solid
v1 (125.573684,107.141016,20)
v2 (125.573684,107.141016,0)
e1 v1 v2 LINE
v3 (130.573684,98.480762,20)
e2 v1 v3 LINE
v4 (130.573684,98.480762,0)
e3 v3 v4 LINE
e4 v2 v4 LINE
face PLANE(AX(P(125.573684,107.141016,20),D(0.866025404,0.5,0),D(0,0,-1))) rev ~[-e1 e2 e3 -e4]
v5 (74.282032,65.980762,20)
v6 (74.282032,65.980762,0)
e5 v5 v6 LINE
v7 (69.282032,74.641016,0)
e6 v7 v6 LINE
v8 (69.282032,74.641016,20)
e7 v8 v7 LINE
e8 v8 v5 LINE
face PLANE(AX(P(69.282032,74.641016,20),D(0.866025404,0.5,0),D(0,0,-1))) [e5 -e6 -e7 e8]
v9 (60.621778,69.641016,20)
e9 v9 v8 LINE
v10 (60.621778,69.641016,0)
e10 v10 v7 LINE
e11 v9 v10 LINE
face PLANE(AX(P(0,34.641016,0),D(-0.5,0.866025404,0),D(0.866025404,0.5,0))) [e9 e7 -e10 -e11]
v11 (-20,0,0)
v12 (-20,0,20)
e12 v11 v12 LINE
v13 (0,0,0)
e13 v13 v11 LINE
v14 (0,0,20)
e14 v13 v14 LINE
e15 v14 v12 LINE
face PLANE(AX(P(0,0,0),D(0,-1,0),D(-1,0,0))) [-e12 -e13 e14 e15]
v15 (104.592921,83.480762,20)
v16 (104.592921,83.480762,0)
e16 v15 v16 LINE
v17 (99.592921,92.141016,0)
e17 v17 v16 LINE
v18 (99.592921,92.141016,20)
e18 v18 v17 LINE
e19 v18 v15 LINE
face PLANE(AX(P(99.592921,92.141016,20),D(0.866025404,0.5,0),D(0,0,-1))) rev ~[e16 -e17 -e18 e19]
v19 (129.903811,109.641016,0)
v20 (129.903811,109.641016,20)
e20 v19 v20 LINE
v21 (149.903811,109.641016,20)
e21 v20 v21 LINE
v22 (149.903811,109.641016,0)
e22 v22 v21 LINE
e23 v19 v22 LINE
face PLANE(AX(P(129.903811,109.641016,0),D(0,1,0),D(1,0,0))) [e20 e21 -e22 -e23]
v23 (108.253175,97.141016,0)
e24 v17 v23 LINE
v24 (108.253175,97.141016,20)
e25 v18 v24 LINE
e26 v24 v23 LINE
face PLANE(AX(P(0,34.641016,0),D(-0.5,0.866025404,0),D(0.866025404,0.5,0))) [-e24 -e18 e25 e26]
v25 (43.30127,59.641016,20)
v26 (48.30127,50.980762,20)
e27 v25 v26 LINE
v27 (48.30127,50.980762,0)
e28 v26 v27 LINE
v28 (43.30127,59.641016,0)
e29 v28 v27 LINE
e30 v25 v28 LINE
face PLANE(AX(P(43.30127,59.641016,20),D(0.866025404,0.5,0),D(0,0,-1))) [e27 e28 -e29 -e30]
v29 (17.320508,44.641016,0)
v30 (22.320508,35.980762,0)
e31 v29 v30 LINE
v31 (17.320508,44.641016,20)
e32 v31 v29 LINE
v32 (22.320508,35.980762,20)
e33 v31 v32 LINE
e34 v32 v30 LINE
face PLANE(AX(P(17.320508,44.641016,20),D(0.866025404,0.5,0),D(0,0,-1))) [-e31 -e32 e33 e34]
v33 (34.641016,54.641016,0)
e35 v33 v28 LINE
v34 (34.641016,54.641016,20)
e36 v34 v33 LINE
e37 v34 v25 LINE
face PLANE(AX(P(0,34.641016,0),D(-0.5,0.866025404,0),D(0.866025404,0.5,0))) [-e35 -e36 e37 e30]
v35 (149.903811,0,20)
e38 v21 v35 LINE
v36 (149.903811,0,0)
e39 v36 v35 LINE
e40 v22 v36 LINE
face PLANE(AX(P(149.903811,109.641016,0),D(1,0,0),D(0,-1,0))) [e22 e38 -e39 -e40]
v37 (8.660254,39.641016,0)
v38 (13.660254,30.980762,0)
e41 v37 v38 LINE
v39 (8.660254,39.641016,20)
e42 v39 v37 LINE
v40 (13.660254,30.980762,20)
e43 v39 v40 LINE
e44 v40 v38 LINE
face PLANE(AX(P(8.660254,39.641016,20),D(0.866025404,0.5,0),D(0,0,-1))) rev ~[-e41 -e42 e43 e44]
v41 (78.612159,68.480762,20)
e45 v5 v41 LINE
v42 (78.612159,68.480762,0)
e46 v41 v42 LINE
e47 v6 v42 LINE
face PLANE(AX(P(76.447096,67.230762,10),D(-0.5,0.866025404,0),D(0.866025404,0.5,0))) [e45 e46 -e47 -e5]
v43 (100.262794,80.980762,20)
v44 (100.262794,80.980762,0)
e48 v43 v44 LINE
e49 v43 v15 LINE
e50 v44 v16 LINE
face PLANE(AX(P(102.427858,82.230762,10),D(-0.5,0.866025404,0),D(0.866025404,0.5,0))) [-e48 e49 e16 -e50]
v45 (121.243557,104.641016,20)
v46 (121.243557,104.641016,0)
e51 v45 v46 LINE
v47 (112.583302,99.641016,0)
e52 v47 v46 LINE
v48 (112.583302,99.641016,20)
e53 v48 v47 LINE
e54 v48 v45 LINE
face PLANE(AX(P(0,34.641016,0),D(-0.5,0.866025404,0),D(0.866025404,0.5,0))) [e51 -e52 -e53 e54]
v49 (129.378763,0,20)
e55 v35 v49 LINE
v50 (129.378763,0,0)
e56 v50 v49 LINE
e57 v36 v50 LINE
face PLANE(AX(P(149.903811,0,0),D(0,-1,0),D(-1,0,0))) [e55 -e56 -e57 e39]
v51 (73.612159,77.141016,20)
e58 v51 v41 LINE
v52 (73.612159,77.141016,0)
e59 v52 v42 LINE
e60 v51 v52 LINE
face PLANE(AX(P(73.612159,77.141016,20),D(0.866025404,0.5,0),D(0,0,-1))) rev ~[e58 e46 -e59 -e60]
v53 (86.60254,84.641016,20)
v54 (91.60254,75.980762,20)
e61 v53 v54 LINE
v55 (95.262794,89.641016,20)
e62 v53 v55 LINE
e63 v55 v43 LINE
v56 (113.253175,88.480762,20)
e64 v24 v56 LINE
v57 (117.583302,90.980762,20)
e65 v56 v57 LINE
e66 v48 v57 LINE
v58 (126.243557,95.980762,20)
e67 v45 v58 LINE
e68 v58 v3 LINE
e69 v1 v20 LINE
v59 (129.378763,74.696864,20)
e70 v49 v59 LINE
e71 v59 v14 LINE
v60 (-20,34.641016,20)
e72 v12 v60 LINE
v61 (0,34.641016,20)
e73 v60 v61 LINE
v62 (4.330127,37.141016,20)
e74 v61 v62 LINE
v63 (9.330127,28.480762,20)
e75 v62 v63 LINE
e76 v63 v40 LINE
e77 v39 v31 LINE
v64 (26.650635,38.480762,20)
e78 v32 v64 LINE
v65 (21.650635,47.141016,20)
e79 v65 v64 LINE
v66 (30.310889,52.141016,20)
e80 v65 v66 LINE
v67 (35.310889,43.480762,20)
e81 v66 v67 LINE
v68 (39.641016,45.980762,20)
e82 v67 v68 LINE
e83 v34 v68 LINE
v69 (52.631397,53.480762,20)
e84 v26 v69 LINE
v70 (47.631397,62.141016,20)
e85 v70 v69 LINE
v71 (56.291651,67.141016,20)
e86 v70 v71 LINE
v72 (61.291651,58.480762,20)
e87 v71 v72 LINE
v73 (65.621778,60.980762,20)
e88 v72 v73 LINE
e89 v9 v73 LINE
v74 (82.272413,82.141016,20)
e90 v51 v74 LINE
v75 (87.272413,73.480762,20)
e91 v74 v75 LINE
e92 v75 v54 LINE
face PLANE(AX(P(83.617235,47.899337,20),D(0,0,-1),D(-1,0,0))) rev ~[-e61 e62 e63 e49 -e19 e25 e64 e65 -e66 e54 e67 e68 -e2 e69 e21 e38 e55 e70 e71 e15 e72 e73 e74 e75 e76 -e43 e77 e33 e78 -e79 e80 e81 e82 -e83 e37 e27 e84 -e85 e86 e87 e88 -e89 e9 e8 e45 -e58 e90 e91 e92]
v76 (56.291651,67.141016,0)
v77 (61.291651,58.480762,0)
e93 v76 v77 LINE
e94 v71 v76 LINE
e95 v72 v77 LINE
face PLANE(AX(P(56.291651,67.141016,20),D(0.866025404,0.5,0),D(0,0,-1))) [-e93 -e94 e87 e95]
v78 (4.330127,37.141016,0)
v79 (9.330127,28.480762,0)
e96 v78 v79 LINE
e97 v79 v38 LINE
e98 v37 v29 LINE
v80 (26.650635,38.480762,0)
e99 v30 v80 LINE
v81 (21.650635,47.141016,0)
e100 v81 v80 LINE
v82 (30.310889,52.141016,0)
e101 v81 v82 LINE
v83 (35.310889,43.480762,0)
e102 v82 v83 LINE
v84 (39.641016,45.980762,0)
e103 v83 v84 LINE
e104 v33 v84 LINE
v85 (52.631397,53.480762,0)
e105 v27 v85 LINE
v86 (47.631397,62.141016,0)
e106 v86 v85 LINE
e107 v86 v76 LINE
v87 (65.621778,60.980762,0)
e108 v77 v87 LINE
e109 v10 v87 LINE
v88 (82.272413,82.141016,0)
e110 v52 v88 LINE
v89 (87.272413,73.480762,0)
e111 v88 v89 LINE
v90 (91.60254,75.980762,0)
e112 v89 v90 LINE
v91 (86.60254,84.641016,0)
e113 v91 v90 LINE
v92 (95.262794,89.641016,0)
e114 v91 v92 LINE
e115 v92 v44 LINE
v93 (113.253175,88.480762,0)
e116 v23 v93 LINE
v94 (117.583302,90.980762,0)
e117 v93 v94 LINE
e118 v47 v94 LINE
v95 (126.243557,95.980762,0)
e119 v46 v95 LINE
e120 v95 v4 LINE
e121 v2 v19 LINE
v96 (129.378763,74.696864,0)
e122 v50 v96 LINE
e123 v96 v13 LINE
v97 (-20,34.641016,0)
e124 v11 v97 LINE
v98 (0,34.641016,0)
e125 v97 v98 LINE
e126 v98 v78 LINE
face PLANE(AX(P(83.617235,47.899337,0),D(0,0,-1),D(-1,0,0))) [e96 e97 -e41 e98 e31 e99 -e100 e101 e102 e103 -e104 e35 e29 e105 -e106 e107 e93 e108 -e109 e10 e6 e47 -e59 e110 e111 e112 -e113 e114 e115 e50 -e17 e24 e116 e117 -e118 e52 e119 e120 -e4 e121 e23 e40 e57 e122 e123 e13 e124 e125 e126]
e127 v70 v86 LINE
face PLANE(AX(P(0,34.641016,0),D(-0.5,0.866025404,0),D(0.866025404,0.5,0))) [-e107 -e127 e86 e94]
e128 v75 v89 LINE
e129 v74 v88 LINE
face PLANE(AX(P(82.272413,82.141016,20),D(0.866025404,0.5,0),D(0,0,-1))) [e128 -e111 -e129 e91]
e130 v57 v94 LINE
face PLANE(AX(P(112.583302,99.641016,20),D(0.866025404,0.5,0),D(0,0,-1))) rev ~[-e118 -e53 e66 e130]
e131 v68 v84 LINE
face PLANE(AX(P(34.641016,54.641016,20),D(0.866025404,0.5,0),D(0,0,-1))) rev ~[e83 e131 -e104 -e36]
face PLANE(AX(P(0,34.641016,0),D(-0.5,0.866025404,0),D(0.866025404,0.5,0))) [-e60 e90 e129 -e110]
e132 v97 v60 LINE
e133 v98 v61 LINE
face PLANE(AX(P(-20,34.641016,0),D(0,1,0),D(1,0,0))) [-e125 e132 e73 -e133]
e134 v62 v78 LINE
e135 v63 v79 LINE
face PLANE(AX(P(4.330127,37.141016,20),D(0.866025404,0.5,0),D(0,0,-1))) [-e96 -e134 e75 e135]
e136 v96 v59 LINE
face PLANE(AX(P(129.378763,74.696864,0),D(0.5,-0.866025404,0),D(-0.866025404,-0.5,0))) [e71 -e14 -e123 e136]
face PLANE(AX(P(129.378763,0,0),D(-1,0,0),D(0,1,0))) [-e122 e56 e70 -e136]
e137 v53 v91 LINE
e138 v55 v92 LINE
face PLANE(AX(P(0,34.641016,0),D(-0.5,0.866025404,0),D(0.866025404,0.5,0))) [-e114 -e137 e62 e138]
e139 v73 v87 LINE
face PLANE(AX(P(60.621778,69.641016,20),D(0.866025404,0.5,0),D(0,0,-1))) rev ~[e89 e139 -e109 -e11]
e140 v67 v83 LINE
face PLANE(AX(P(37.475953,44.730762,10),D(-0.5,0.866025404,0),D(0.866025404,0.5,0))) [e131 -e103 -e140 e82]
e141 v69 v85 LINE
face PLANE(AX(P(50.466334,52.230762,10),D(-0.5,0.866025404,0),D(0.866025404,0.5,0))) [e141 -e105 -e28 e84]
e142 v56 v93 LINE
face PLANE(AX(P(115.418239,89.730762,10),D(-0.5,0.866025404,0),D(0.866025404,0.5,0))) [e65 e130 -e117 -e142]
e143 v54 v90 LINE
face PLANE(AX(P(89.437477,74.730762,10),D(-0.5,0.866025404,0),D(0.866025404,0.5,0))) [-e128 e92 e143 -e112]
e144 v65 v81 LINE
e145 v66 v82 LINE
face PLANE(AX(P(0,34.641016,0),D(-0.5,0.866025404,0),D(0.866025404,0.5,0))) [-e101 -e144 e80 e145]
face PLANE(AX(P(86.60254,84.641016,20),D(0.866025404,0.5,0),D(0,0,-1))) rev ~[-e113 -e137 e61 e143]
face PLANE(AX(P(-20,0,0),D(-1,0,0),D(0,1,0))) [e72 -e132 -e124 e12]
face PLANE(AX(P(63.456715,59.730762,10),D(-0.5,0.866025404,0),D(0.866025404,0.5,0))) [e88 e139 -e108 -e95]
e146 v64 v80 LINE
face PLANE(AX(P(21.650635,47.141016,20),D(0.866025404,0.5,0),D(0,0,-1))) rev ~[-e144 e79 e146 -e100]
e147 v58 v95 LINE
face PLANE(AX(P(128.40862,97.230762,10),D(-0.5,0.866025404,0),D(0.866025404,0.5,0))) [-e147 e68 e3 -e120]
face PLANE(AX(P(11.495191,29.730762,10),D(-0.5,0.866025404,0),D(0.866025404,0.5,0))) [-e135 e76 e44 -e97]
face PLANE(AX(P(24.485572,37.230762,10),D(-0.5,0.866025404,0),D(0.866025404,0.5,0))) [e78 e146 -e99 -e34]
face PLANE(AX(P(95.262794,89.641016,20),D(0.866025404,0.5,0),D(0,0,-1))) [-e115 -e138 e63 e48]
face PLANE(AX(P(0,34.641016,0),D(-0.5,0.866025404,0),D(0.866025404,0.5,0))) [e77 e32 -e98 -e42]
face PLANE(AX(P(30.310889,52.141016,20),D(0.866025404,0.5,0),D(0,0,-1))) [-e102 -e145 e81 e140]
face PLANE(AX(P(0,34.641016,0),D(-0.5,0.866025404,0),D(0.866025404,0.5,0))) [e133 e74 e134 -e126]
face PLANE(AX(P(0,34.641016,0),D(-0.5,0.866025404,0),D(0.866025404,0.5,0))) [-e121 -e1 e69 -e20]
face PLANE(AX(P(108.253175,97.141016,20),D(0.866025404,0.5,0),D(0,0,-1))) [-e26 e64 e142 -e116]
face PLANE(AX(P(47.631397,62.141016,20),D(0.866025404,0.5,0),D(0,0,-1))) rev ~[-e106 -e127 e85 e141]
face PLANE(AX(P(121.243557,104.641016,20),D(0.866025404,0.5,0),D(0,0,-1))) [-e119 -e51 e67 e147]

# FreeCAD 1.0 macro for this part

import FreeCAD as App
import Part
import Sketcher
from FreeCAD import Vector
Q = App.Units.Quantity

doc = App.newDocument("Part")
body = doc.addObject("PartDesign::Body", "Body")

sketch1 = body.newObject("Sketcher::SketchObject", "Sketch")
sketch1.AttachmentSupport = (doc.getObject("XY_Plane"), [""])
sketch1.MapMode = "FlatFace"
sketch1.addGeometry([
    Part.LineSegment(Vector(-20, 0, 0), Vector(0, 0, 0)),
    Part.LineSegment(Vector(0, 0, 0), Vector(129, 75, 0)),
    Part.LineSegment(Vector(129, 75, 0), Vector(129, 0, 0)),
    Part.LineSegment(Vector(129, 0, 0), Vector(150, 0, 0)),
    Part.LineSegment(Vector(150, 0, 0), Vector(150, 110, 0)),
    Part.LineSegment(Vector(150, 110, 0), Vector(130, 110, 0)),
    Part.LineSegment(Vector(130, 110, 0), Vector(0, 35, 0)),
    Part.LineSegment(Vector(0, 35, 0), Vector(-20, 35, 0)),
    Part.LineSegment(Vector(-20, 35, 0), Vector(-20, 0, 0)),
], False)
sketch1.addConstraint([
    Sketcher.Constraint("Coincident", 0, 2, 1, 1),
    Sketcher.Constraint("Coincident", 1, 2, 2, 1),
    Sketcher.Constraint("Coincident", 2, 2, 3, 1),
    Sketcher.Constraint("Coincident", 3, 2, 4, 1),
    Sketcher.Constraint("Coincident", 4, 2, 5, 1),
    Sketcher.Constraint("Coincident", 5, 2, 6, 1),
    Sketcher.Constraint("Coincident", 6, 2, 7, 1),
    Sketcher.Constraint("Coincident", 7, 2, 8, 1),
    Sketcher.Constraint("Coincident", 8, 2, 0, 1),
    Sketcher.Constraint("Horizontal", 0),
    Sketcher.Constraint("Vertical", 2),
    Sketcher.Constraint("Horizontal", 3),
    Sketcher.Constraint("Vertical", 4),
    Sketcher.Constraint("Horizontal", 5),
    Sketcher.Constraint("Horizontal", 7),
    Sketcher.Constraint("Vertical", 8),
    Sketcher.Constraint("Coincident", 0, 2, -1, 1),
    Sketcher.Constraint("PointOnObject", 2, 2, -1),
    Sketcher.Constraint("PointOnObject", 6, 2, -2),
    Sketcher.Constraint("Parallel", 1, 6),
    Sketcher.Constraint("Equal", 0, 5),
    Sketcher.Constraint("DistanceX", 0, 1, 0, 2, 20.0),
    Sketcher.Constraint("Angle", 1, Q("30 deg")),
    Sketcher.Constraint("Distance", 6, 150.0),
    Sketcher.Constraint("DistanceX", 3, 1, 3, 2, 20.525047),
    Sketcher.Constraint("DistanceY", 4, 1, 4, 2, 109.641016),
])
pad1 = body.newObject("PartDesign::Pad", "Pad")
pad1.Profile = sketch1
pad1.Length = 20

sketch2 = body.newObject("Sketcher::SketchObject", "Sketch001")
sketch2.Placement = App.Placement(Vector(-15, 25.980762, 0), App.Rotation(Vector(0.866025404, 0.5, 0), Vector(0, 0, -1), Vector(-0.5, 0.866025404, 0), "ZXY"))
sketch2.addGeometry([
    Part.LineSegment(Vector(22, 0, 0), Vector(22, -20, 0)),
    Part.LineSegment(Vector(22, -20, 0), Vector(27, -20, 0)),
    Part.LineSegment(Vector(27, -20, 0), Vector(27, 0, 0)),
    Part.LineSegment(Vector(27, 0, 0), Vector(22, 0, 0)),
    Part.LineSegment(Vector(37, 0, 0), Vector(37, -20, 0)),
    Part.LineSegment(Vector(37, -20, 0), Vector(42, -20, 0)),
    Part.LineSegment(Vector(42, -20, 0), Vector(42, 0, 0)),
    Part.LineSegment(Vector(42, 0, 0), Vector(37, 0, 0)),
    Part.LineSegment(Vector(52, 0, 0), Vector(52, -20, 0)),
    Part.LineSegment(Vector(52, -20, 0), Vector(57, -20, 0)),
    Part.LineSegment(Vector(57, -20, 0), Vector(57, 0, 0)),
    Part.LineSegment(Vector(57, 0, 0), Vector(52, 0, 0)),
    Part.LineSegment(Vector(67, 0, 0), Vector(67, -20, 0)),
    Part.LineSegment(Vector(67, -20, 0), Vector(72, -20, 0)),
    Part.LineSegment(Vector(72, -20, 0), Vector(72, 0, 0)),
    Part.LineSegment(Vector(72, 0, 0), Vector(67, 0, 0)),
    Part.LineSegment(Vector(82, 0, 0), Vector(82, -20, 0)),
    Part.LineSegment(Vector(82, -20, 0), Vector(87, -20, 0)),
    Part.LineSegment(Vector(87, -20, 0), Vector(87, 0, 0)),
    Part.LineSegment(Vector(87, 0, 0), Vector(82, 0, 0)),
    Part.LineSegment(Vector(97, 0, 0), Vector(97, -20, 0)),
    Part.LineSegment(Vector(97, -20, 0), Vector(102, -20, 0)),
    Part.LineSegment(Vector(102, -20, 0), Vector(102, 0, 0)),
    Part.LineSegment(Vector(102, 0, 0), Vector(97, 0, 0)),
    Part.LineSegment(Vector(112, 0, 0), Vector(112, -20, 0)),
    Part.LineSegment(Vector(112, -20, 0), Vector(117, -20, 0)),
    Part.LineSegment(Vector(117, -20, 0), Vector(117, 0, 0)),
    Part.LineSegment(Vector(117, 0, 0), Vector(112, 0, 0)),
    Part.LineSegment(Vector(127, 0, 0), Vector(127, -20, 0)),
    Part.LineSegment(Vector(127, -20, 0), Vector(132, -20, 0)),
    Part.LineSegment(Vector(132, -20, 0), Vector(132, 0, 0)),
    Part.LineSegment(Vector(132, 0, 0), Vector(127, 0, 0)),
    Part.LineSegment(Vector(142, 0, 0), Vector(142, -20, 0)),
    Part.LineSegment(Vector(142, -20, 0), Vector(147, -20, 0)),
    Part.LineSegment(Vector(147, -20, 0), Vector(147, 0, 0)),
    Part.LineSegment(Vector(147, 0, 0), Vector(142, 0, 0)),
    Part.LineSegment(Vector(157, 0, 0), Vector(157, -20, 0)),
    Part.LineSegment(Vector(157, -20, 0), Vector(162, -20, 0)),
    Part.LineSegment(Vector(162, -20, 0), Vector(162, 0, 0)),
    Part.LineSegment(Vector(162, 0, 0), Vector(157, 0, 0)),
], False)
sketch2.addConstraint([
    Sketcher.Constraint("Coincident", 0, 2, 1, 1),
    Sketcher.Constraint("Coincident", 1, 2, 2, 1),
    Sketcher.Constraint("Coincident", 2, 2, 3, 1),
    Sketcher.Constraint("Coincident", 3, 2, 0, 1),
    Sketcher.Constraint("Coincident", 4, 2, 5, 1),
    Sketcher.Constraint("Coincident", 5, 2, 6, 1),
    Sketcher.Constraint("Coincident", 6, 2, 7, 1),
    Sketcher.Constraint("Coincident", 7, 2, 4, 1),
    Sketcher.Constraint("Coincident", 8, 2, 9, 1),
    Sketcher.Constraint("Coincident", 9, 2, 10, 1),
    Sketcher.Constraint("Coincident", 10, 2, 11, 1),
    Sketcher.Constraint("Coincident", 11, 2, 8, 1),
    Sketcher.Constraint("Coincident", 12, 2, 13, 1),
    Sketcher.Constraint("Coincident", 13, 2, 14, 1),
    Sketcher.Constraint("Coincident", 14, 2, 15, 1),
    Sketcher.Constraint("Coincident", 15, 2, 12, 1),
    Sketcher.Constraint("Coincident", 16, 2, 17, 1),
    Sketcher.Constraint("Coincident", 17, 2, 18, 1),
    Sketcher.Constraint("Coincident", 18, 2, 19, 1),
    Sketcher.Constraint("Coincident", 19, 2, 16, 1),
    Sketcher.Constraint("Coincident", 20, 2, 21, 1),
    Sketcher.Constraint("Coincident", 21, 2, 22, 1),
    Sketcher.Constraint("Coincident", 22, 2, 23, 1),
    Sketcher.Constraint("Coincident", 23, 2, 20, 1),
    Sketcher.Constraint("Coincident", 24, 2, 25, 1),
    Sketcher.Constraint("Coincident", 25, 2, 26, 1),
    Sketcher.Constraint("Coincident", 26, 2, 27, 1),
    Sketcher.Constraint("Coincident", 27, 2, 24, 1),
    Sketcher.Constraint("Coincident", 28, 2, 29, 1),
    Sketcher.Constraint("Coincident", 29, 2, 30, 1),
    Sketcher.Constraint("Coincident", 30, 2, 31, 1),
    Sketcher.Constraint("Coincident", 31, 2, 28, 1),
    Sketcher.Constraint("Coincident", 32, 2, 33, 1),
    Sketcher.Constraint("Coincident", 33, 2, 34, 1),
    Sketcher.Constraint("Coincident", 34, 2, 35, 1),
    Sketcher.Constraint("Coincident", 35, 2, 32, 1),
    Sketcher.Constraint("Coincident", 36, 2, 37, 1),
    Sketcher.Constraint("Coincident", 37, 2, 38, 1),
    Sketcher.Constraint("Coincident", 38, 2, 39, 1),
    Sketcher.Constraint("Coincident", 39, 2, 36, 1),
    Sketcher.Constraint("Vertical", 0),
    Sketcher.Constraint("Horizontal", 1),
    Sketcher.Constraint("Vertical", 2),
    Sketcher.Constraint("Horizontal", 3),
    Sketcher.Constraint("Vertical", 4),
    Sketcher.Constraint("Horizontal", 5),
    Sketcher.Constraint("Vertical", 6),
    Sketcher.Constraint("Horizontal", 7),
    Sketcher.Constraint("Vertical", 8),
    Sketcher.Constraint("Horizontal", 9),
    Sketcher.Constraint("Vertical", 10),
    Sketcher.Constraint("Horizontal", 11),
    Sketcher.Constraint("Vertical", 12),
    Sketcher.Constraint("Horizontal", 13),
    Sketcher.Constraint("Vertical", 14),
    Sketcher.Constraint("Horizontal", 15),
    Sketcher.Constraint("Vertical", 16),
    Sketcher.Constraint("Horizontal", 17),
    Sketcher.Constraint("Vertical", 18),
    Sketcher.Constraint("Horizontal", 19),
    Sketcher.Constraint("Vertical", 20),
    Sketcher.Constraint("Horizontal", 21),
    Sketcher.Constraint("Vertical", 22),
    Sketcher.Constraint("Horizontal", 23),
    Sketcher.Constraint("Vertical", 24),
    Sketcher.Constraint("Horizontal", 25),
    Sketcher.Constraint("Vertical", 26),
    Sketcher.Constraint("Horizontal", 27),
    Sketcher.Constraint("Vertical", 28),
    Sketcher.Constraint("Horizontal", 29),
    Sketcher.Constraint("Vertical", 30),
    Sketcher.Constraint("Horizontal", 31),
    Sketcher.Constraint("Vertical", 32),
    Sketcher.Constraint("Horizontal", 33),
    Sketcher.Constraint("Vertical", 34),
    Sketcher.Constraint("Horizontal", 35),
    Sketcher.Constraint("Vertical", 36),
    Sketcher.Constraint("Horizontal", 37),
    Sketcher.Constraint("Vertical", 38),
    Sketcher.Constraint("Horizontal", 39),
    Sketcher.Constraint("PointOnObject", 2, 2, -1),
    Sketcher.Constraint("PointOnObject", 6, 2, -1),
    Sketcher.Constraint("PointOnObject", 10, 2, -1),
    Sketcher.Constraint("PointOnObject", 14, 2, -1),
    Sketcher.Constraint("PointOnObject", 18, 2, -1),
    Sketcher.Constraint("PointOnObject", 22, 2, -1),
    Sketcher.Constraint("PointOnObject", 26, 2, -1),
    Sketcher.Constraint("PointOnObject", 30, 2, -1),
    Sketcher.Constraint("PointOnObject", 34, 2, -1),
    Sketcher.Constraint("PointOnObject", 38, 2, -1),
    Sketcher.Constraint("Horizontal", 1, 2, 4, 2),
    Sketcher.Constraint("Horizontal", 5, 2, 8, 2),
    Sketcher.Constraint("Horizontal", 9, 2, 12, 2),
    Sketcher.Constraint("Horizontal", 13, 2, 16, 2),
    Sketcher.Constraint("Horizontal", 17, 2, 20, 2),
    Sketcher.Constraint("Horizontal", 21, 2, 24, 2),
    Sketcher.Constraint("Horizontal", 25, 2, 28, 2),
    Sketcher.Constraint("Horizontal", 29, 2, 32, 2),
    Sketcher.Constraint("Horizontal", 33, 2, 36, 2),
    Sketcher.Constraint("Equal", 3, 5),
    Sketcher.Constraint("Equal", 7, 9),
    Sketcher.Constraint("Equal", 11, 13),
    Sketcher.Constraint("Equal", 15, 17),
    Sketcher.Constraint("Equal", 19, 21),
    Sketcher.Constraint("Equal", 23, 25),
    Sketcher.Constraint("Equal", 27, 29),
    Sketcher.Constraint("Equal", 31, 33),
    Sketcher.Constraint("Equal", 35, 37),
    Sketcher.Constraint("DistanceX", 1, 1, 1, 2, 5.0),
    Sketcher.Constraint("DistanceY", 0, 2, 0, 1, 20.0),
    Sketcher.Constraint("DistanceX", 1, 2, 4, 2, 10.0),
    Sketcher.Constraint("DistanceX", 5, 2, 8, 2, 10.0),
    Sketcher.Constraint("DistanceX", 9, 2, 12, 2, 10.0),
    Sketcher.Constraint("DistanceX", 13, 2, 16, 2, 10.0),
    Sketcher.Constraint("DistanceX", 17, 2, 20, 2, 10.0),
    Sketcher.Constraint("DistanceX", 21, 2, 24, 2, 10.0),
    Sketcher.Constraint("DistanceX", 25, 2, 28, 2, 10.0),
    Sketcher.Constraint("DistanceX", 29, 2, 32, 2, 10.0),
    Sketcher.Constraint("DistanceX", 33, 2, 36, 2, 10.0),
    Sketcher.Constraint("DistanceX", -1, 1, 0, 2, 22.320508),
])
pocket1 = body.newObject("PartDesign::Pocket", "Pocket")
pocket1.Profile = sketch2
pocket1.Length = 10

doc.recompute()
